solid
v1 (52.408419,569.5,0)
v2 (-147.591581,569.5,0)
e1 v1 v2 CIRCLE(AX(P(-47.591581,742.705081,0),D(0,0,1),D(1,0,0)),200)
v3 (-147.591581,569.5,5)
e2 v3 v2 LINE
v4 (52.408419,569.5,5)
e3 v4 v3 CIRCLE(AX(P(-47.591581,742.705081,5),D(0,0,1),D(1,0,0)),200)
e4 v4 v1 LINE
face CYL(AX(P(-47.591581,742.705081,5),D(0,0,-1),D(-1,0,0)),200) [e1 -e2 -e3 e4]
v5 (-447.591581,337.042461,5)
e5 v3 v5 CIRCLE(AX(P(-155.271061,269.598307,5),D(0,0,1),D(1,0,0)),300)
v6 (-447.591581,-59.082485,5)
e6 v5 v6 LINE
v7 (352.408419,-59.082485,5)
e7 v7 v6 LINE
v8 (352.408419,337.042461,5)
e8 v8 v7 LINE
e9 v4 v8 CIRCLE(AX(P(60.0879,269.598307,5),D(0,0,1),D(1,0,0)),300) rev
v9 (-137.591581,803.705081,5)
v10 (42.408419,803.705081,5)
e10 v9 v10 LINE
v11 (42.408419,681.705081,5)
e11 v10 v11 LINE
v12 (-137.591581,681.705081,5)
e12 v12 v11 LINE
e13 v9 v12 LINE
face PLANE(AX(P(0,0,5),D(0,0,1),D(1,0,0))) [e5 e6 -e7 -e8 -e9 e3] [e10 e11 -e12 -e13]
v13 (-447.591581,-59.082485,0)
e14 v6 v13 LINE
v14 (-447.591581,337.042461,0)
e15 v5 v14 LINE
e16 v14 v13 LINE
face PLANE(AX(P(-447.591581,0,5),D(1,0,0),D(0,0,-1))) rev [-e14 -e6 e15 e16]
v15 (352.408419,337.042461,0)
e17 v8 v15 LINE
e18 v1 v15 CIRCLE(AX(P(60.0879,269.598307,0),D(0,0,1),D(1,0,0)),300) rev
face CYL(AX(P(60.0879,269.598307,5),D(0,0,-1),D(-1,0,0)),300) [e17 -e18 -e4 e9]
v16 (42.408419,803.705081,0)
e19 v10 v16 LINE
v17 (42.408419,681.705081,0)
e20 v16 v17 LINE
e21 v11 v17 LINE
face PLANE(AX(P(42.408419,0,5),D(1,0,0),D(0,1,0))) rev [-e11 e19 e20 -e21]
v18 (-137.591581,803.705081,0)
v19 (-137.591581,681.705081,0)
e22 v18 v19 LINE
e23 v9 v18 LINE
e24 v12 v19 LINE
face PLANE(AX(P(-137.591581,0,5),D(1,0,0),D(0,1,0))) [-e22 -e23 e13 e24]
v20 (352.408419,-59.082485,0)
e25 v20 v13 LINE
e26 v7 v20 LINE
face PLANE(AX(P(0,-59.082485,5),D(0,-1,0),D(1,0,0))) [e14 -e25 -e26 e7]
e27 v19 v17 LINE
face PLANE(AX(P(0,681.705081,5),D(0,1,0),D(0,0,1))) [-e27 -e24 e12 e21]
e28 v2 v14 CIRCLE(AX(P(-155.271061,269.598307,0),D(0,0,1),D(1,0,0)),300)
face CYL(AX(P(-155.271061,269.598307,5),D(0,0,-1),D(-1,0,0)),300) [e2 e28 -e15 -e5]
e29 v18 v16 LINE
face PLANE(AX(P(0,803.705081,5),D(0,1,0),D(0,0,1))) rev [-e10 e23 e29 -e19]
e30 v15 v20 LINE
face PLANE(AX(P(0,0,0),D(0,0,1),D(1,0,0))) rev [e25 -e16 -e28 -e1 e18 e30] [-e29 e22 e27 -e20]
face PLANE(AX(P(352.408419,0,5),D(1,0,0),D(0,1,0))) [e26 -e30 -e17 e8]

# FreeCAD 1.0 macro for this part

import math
import FreeCAD as App
import Part
import Sketcher

doc = App.newDocument("Part")
body = doc.addObject("PartDesign::Body", "Body")

# Sketch on XY plane
sketch1 = body.newObject("Sketcher::SketchObject", "Sketch")
sketch1.AttachmentSupport = (doc.getObject("XY_Plane"), [""])
sketch1.MapMode = "FlatFace"
sketch1.addGeometry(Part.LineSegment(App.Vector(-448, 337, 0), App.Vector(-448, -59, 0)), False)
sketch1.addGeometry(Part.LineSegment(App.Vector(-448, -59, 0), App.Vector(352, -59, 0)), False)
sketch1.addGeometry(Part.LineSegment(App.Vector(352, -59, 0), App.Vector(352, 337, 0)), False)
sketch1.addGeometry(Part.ArcOfCircle(Part.Circle(App.Vector(60, 270, 0), App.Vector(0, 0, 1), 300), math.radians(13), math.radians(91)), False)
sketch1.addGeometry(Part.ArcOfCircle(Part.Circle(App.Vector(-48, 743, 0), App.Vector(0, 0, 1), 200), math.radians(-60), math.radians(240)), False)
sketch1.addGeometry(Part.ArcOfCircle(Part.Circle(App.Vector(-155, 270, 0), App.Vector(0, 0, 1), 300), math.radians(89), math.radians(167)), False)
sketch1.addGeometry(Part.LineSegment(App.Vector(42, 682, 0), App.Vector(-138, 682, 0)), False)
sketch1.addGeometry(Part.LineSegment(App.Vector(-138, 682, 0), App.Vector(-138, 804, 0)), False)
sketch1.addGeometry(Part.LineSegment(App.Vector(-138, 804, 0), App.Vector(42, 804, 0)), False)
sketch1.addGeometry(Part.LineSegment(App.Vector(42, 804, 0), App.Vector(42, 682, 0)), False)
sketch1.addConstraint(Sketcher.Constraint("Coincident", 0, 2, 1, 1))
sketch1.addConstraint(Sketcher.Constraint("Coincident", 1, 2, 2, 1))
sketch1.addConstraint(Sketcher.Constraint("Coincident", 2, 2, 3, 1))
sketch1.addConstraint(Sketcher.Constraint("Coincident", 3, 2, 4, 1))
sketch1.addConstraint(Sketcher.Constraint("Coincident", 4, 2, 5, 1))
sketch1.addConstraint(Sketcher.Constraint("Coincident", 5, 2, 0, 1))
sketch1.addConstraint(Sketcher.Constraint("Coincident", 6, 2, 7, 1))
sketch1.addConstraint(Sketcher.Constraint("Coincident", 7, 2, 8, 1))
sketch1.addConstraint(Sketcher.Constraint("Coincident", 8, 2, 9, 1))
sketch1.addConstraint(Sketcher.Constraint("Coincident", 9, 2, 6, 1))
sketch1.addConstraint(Sketcher.Constraint("Vertical", 0))
sketch1.addConstraint(Sketcher.Constraint("Horizontal", 1))
sketch1.addConstraint(Sketcher.Constraint("Vertical", 2))
sketch1.addConstraint(Sketcher.Constraint("Horizontal", 6))
sketch1.addConstraint(Sketcher.Constraint("Vertical", 7))
sketch1.addConstraint(Sketcher.Constraint("Horizontal", 8))
sketch1.addConstraint(Sketcher.Constraint("Vertical", 9))
sketch1.addConstraint(Sketcher.Constraint("Equal", 3, 5))
sketch1.addConstraint(Sketcher.Constraint("Horizontal", 3, 3, 5, 3))
sketch1.addConstraint(Sketcher.Constraint("Horizontal", 2, 2, 5, 2))
sketch1.addConstraint(Sketcher.Constraint("Radius", 3, 300.0))
sketch1.addConstraint(Sketcher.Constraint("Radius", 4, 200.0))
sketch1.addConstraint(Sketcher.Constraint("DistanceX", 1, 1, 1, 2, 800.0))
sketch1.addConstraint(Sketcher.Constraint("DistanceX", 6, 2, 6, 1, 180.0))
sketch1.addConstraint(Sketcher.Constraint("DistanceY", 7, 1, 7, 2, 122.0))
sketch1.addConstraint(Sketcher.Constraint("DistanceX", 0, 2, 4, 3, 400.0))
sketch1.addConstraint(Sketcher.Constraint("DistanceX", 4, 3, 3, 2, 100.0))
sketch1.addConstraint(Sketcher.Constraint("DistanceX", 6, 2, 4, 3, 90.0))
sketch1.addConstraint(Sketcher.Constraint("DistanceY", 6, 2, 4, 3, 61.0))
sketch1.addConstraint(Sketcher.Constraint("DistanceY", -1, 1, 3, 2, 569.5))
sketch1.addConstraint(Sketcher.Constraint("DistanceX", -1, 1, 3, 3, 60.0879))
sketch1.addConstraint(Sketcher.Constraint("DistanceY", 0, 2, 0, 1, 396.124946))
sketch1.addConstraint(Sketcher.Constraint("DistanceX", 4, 3, -1, 1, 47.591581))
pad1 = body.newObject("PartDesign::Pad", "Pad")
pad1.Profile = sketch1
pad1.Length = 5

doc.recompute()
